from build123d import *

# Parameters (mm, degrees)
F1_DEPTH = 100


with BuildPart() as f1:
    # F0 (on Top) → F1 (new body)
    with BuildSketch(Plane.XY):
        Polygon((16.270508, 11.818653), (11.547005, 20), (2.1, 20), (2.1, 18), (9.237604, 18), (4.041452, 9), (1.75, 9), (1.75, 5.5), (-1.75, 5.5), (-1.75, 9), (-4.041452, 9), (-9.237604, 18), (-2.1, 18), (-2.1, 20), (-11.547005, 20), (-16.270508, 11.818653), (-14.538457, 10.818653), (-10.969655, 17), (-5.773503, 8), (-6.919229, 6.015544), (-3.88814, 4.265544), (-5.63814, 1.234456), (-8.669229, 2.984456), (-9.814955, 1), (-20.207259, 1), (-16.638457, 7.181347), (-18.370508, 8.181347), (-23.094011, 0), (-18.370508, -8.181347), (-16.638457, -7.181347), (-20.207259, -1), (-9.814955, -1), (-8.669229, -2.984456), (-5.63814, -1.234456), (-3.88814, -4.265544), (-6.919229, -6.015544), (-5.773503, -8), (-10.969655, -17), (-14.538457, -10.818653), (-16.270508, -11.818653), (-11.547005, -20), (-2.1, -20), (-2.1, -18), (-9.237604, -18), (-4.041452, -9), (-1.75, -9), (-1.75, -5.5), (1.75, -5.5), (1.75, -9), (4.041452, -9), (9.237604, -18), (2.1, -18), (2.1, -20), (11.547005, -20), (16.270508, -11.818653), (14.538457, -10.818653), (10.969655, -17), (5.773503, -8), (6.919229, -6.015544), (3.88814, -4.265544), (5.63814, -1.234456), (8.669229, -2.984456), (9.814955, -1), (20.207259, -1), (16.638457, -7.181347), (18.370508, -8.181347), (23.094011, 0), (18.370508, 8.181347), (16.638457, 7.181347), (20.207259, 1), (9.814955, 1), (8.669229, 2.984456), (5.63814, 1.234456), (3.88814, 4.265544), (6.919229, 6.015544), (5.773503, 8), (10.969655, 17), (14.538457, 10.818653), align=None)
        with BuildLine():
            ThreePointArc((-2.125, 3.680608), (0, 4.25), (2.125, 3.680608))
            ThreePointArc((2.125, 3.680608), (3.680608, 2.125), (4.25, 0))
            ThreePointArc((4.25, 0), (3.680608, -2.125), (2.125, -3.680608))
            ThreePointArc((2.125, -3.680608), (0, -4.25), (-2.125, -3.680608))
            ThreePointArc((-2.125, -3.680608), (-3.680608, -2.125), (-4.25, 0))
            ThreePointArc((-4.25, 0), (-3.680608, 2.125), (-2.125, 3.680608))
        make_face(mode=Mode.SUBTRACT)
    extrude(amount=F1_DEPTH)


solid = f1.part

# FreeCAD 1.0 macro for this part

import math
import FreeCAD as App
import Part
import Sketcher
from FreeCAD import Vector
Q = App.Units.Quantity


def add_polygon(sketch, points):
    """Adds a closed chain of lines whose ends are joined by coincident constraints."""
    first, n = sketch.GeometryCount, len(points)
    for a, b in zip(points, points[1:] + points[:1]):
        sketch.addGeometry(Part.LineSegment(App.Vector(*a, 0), App.Vector(*b, 0)), False)
    for i in range(n):
        sketch.addConstraint(Sketcher.Constraint("Coincident", first + i, 2, first + (i + 1) % n, 1))

doc = App.newDocument("Part")
body = doc.addObject("PartDesign::Body", "Body")

# Sketch on XY plane
sketch1 = body.newObject("Sketcher::SketchObject", "Sketch")
sketch1.AttachmentSupport = (doc.getObject("XY_Plane"), [""])
sketch1.MapMode = "FlatFace"
add_polygon(sketch1, [(16.270508, 11.818653), (11.547005, 20), (2.1, 20), (2.1, 18), (9.237604, 18), (4.041452, 9), (1.75, 9), (1.75, 5.5), (-1.75, 5.5), (-1.75, 9), (-4.041452, 9), (-9.237604, 18), (-2.1, 18), (-2.1, 20), (-11.547005, 20), (-16.270508, 11.818653), (-14.538457, 10.818653), (-10.969655, 17), (-5.773503, 8), (-6.919229, 6.015544), (-3.88814, 4.265544), (-5.63814, 1.234456), (-8.669229, 2.984456), (-9.814955, 1), (-20.207259, 1), (-16.638457, 7.181347), (-18.370508, 8.181347), (-23.094011, 0), (-18.370508, -8.181347), (-16.638457, -7.181347), (-20.207259, -1), (-9.814955, -1), (-8.669229, -2.984456), (-5.63814, -1.234456), (-3.88814, -4.265544), (-6.919229, -6.015544), (-5.773503, -8), (-10.969655, -17), (-14.538457, -10.818653), (-16.270508, -11.818653), (-11.547005, -20), (-2.1, -20), (-2.1, -18), (-9.237604, -18), (-4.041452, -9), (-1.75, -9), (-1.75, -5.5), (1.75, -5.5), (1.75, -9), (4.041452, -9), (9.237604, -18), (2.1, -18), (2.1, -20), (11.547005, -20), (16.270508, -11.818653), (14.538457, -10.818653), (10.969655, -17), (5.773503, -8), (6.919229, -6.015544), (3.88814, -4.265544), (5.63814, -1.234456), (8.669229, -2.984456), (9.814955, -1), (20.207259, -1), (16.638457, -7.181347), (18.370508, -8.181347), (23.094011, 0), (18.370508, 8.181347), (16.638457, 7.181347), (20.207259, 1), (9.814955, 1), (8.669229, 2.984456), (5.63814, 1.234456), (3.88814, 4.265544), (6.919229, 6.015544), (5.773503, 8), (10.969655, 17), (14.538457, 10.818653)])  # lines 0-77
sketch1.addGeometry(Part.ArcOfCircle(Part.Circle(Vector(0, 0, 0), Vector(0, 0, 1), 4.25), math.radians(119.999999), math.radians(180.000001)), False)  # 78
sketch1.addGeometry(Part.ArcOfCircle(Part.Circle(Vector(0, 0, 0), Vector(0, 0, 1), 4.25), math.radians(60.000002), math.radians(119.999998)), False)  # 79
sketch1.addGeometry(Part.ArcOfCircle(Part.Circle(Vector(0, 0, 0), Vector(0, 0, 1), 4.25), math.radians(-0.000001), math.radians(60.000001)), False)  # 80
sketch1.addGeometry(Part.ArcOfCircle(Part.Circle(Vector(0, 0, 0), Vector(0, 0, 1), 4.25), math.radians(-60.000001), math.radians(0.000001)), False)  # 81
sketch1.addGeometry(Part.ArcOfCircle(Part.Circle(Vector(0, 0, 0), Vector(0, 0, 1), 4.25), math.radians(-119.999998), math.radians(-60.000002)), False)  # 82
sketch1.addGeometry(Part.ArcOfCircle(Part.Circle(Vector(0, 0, 0), Vector(0, 0, 1), 4.25), math.radians(179.999999), math.radians(240.000001)), False)  # 83
sketch1.addConstraint([
    Sketcher.Constraint("Tangent", 78, 1, 79, 2),
    Sketcher.Constraint("Tangent", 79, 1, 80, 2),
    Sketcher.Constraint("Tangent", 80, 1, 81, 2),
    Sketcher.Constraint("Tangent", 81, 1, 82, 2),
    Sketcher.Constraint("Tangent", 82, 1, 83, 2),
    Sketcher.Constraint("Tangent", 83, 1, 78, 2),
    Sketcher.Constraint("Horizontal", 1),
    Sketcher.Constraint("Vertical", 2),
    Sketcher.Constraint("Horizontal", 3),
    Sketcher.Constraint("Horizontal", 5),
    Sketcher.Constraint("Vertical", 6),
    Sketcher.Constraint("Horizontal", 7),
    Sketcher.Constraint("Vertical", 8),
    Sketcher.Constraint("Horizontal", 9),
    Sketcher.Constraint("Horizontal", 11),
    Sketcher.Constraint("Vertical", 12),
    Sketcher.Constraint("Horizontal", 13),
    Sketcher.Constraint("Horizontal", 23),
    Sketcher.Constraint("Horizontal", 30),
    Sketcher.Constraint("Horizontal", 40),
    Sketcher.Constraint("Vertical", 41),
    Sketcher.Constraint("Horizontal", 42),
    Sketcher.Constraint("Horizontal", 44),
    Sketcher.Constraint("Vertical", 45),
    Sketcher.Constraint("Horizontal", 46),
    Sketcher.Constraint("Vertical", 47),
    Sketcher.Constraint("Horizontal", 48),
    Sketcher.Constraint("Horizontal", 50),
    Sketcher.Constraint("Vertical", 51),
    Sketcher.Constraint("Horizontal", 52),
    Sketcher.Constraint("Horizontal", 62),
    Sketcher.Constraint("Horizontal", 69),
    Sketcher.Constraint("Coincident", 78, 3, -1, 1),
    Sketcher.Constraint("Coincident", 80, 3, -1, 1),
    Sketcher.Constraint("Equal", 80, 81),
    Sketcher.Constraint("Symmetric", 0, 2, 39, 2, -1, 1),
    Sketcher.Constraint("Symmetric", 2, 2, 41, 2, -1, 1),
    Sketcher.Constraint("Symmetric", 4, 2, 43, 2, -1, 1),
    Sketcher.Constraint("Symmetric", 6, 2, 45, 2, -1, 1),
    Sketcher.Constraint("Symmetric", 8, 2, 47, 2, -1, 1),
    Sketcher.Constraint("Symmetric", 10, 2, 49, 2, -1, 1),
    Sketcher.Constraint("Symmetric", 12, 2, 51, 2, -1, 1),
    Sketcher.Constraint("Symmetric", 14, 2, 53, 2, -1, 1),
    Sketcher.Constraint("Symmetric", 15, 2, 54, 2, -1, 1),
    Sketcher.Constraint("Symmetric", 16, 2, 55, 2, -1, 1),
    Sketcher.Constraint("Symmetric", 17, 2, 56, 2, -1, 1),
    Sketcher.Constraint("Symmetric", 18, 2, 57, 2, -1, 1),
    Sketcher.Constraint("Symmetric", 19, 2, 58, 2, -1, 1),
    Sketcher.Constraint("Symmetric", 20, 2, 59, 2, -1, 1),
    Sketcher.Constraint("Symmetric", 21, 2, 60, 2, -1, 1),
    Sketcher.Constraint("Symmetric", 22, 2, 61, 2, -1, 1),
    Sketcher.Constraint("Symmetric", 24, 2, 63, 2, -1, 1),
    Sketcher.Constraint("Symmetric", 25, 2, 64, 2, -1, 1),
    Sketcher.Constraint("Symmetric", 26, 2, 65, 2, -1, 1),
    Sketcher.Constraint("Symmetric", 27, 2, 66, 2, -1, 1),
    Sketcher.Constraint("Symmetric", 28, 2, 67, 2, -1, 1),
    Sketcher.Constraint("Symmetric", 29, 2, 68, 2, -1, 1),
    Sketcher.Constraint("Symmetric", 31, 2, 70, 2, -1, 1),
    Sketcher.Constraint("Symmetric", 32, 2, 71, 2, -1, 1),
    Sketcher.Constraint("Symmetric", 33, 2, 72, 2, -1, 1),
    Sketcher.Constraint("Symmetric", 34, 2, 73, 2, -1, 1),
    Sketcher.Constraint("Symmetric", 35, 2, 74, 2, -1, 1),
    Sketcher.Constraint("Symmetric", 36, 2, 75, 2, -1, 1),
    Sketcher.Constraint("Symmetric", 37, 2, 76, 2, -1, 1),
    Sketcher.Constraint("Symmetric", 38, 2, 77, 2, -1, 1),
    Sketcher.Constraint("Symmetric", 5, 2, 8, 2, -2),
    Sketcher.Constraint("Symmetric", 3, 2, 10, 2, -2),
    Sketcher.Constraint("Symmetric", 1, 2, 12, 2, -2),
    Sketcher.Constraint("Symmetric", 38, 2, 53, 2, -2),
    Sketcher.Constraint("Symmetric", 37, 2, 54, 2, -2),
    Sketcher.Constraint("Symmetric", 36, 2, 55, 2, -2),
    Sketcher.Constraint("Symmetric", 35, 2, 56, 2, -2),
    Sketcher.Constraint("Symmetric", 34, 2, 57, 2, -2),
    Sketcher.Constraint("Symmetric", 33, 2, 58, 2, -2),
    Sketcher.Constraint("Symmetric", 32, 2, 59, 2, -2),
    Sketcher.Constraint("Symmetric", 31, 2, 60, 2, -2),
    Sketcher.Constraint("Symmetric", 30, 2, 61, 2, -2),
    Sketcher.Constraint("Symmetric", 28, 2, 63, 2, -2),
    Sketcher.Constraint("Symmetric", 27, 2, 64, 2, -2),
    Sketcher.Constraint("PointOnObject", 26, 2, -1),
    Sketcher.Constraint("PointOnObject", 80, 1, -1),
    Sketcher.Constraint("PointOnObject", 83, 1, -1),
    Sketcher.Constraint("Parallel", 0, 10),
    Sketcher.Constraint("Parallel", 4, 14),
    Sketcher.Constraint("Perpendicular", 14, 15),
    Sketcher.Constraint("Perpendicular", 15, 16),
    Sketcher.Constraint("Parallel", 10, 17),
    Sketcher.Constraint("Parallel", 16, 18),
    Sketcher.Constraint("Perpendicular", 18, 19),
    Sketcher.Constraint("Perpendicular", 19, 20),
    Sketcher.Constraint("Perpendicular", 20, 21),
    Sketcher.Constraint("Perpendicular", 21, 22),
    Sketcher.Constraint("Parallel", 22, 24),
    Sketcher.Constraint("Perpendicular", 24, 25),
    Sketcher.Constraint("Perpendicular", 25, 26),
    Sketcher.Constraint("Parallel", 17, 27),
    Sketcher.Constraint("Perpendicular", 28, 29),
    Sketcher.Constraint("Parallel", 36, 43),
    Sketcher.Constraint("Parallel", 39, 49),
    Sketcher.Constraint("Parallel", 43, 53),
    Sketcher.Constraint("Parallel", 61, 63),
    Sketcher.Constraint("Parallel", 68, 70),
    Sketcher.Constraint("Horizontal", 78, 1, 79, 1),
    Sketcher.Constraint("Horizontal", 81, 1, 82, 1),
    Sketcher.Constraint("Vertical", 79, 1, 81, 1),
    Sketcher.Constraint("Equal", 46, 6),
    Sketcher.Constraint("Equal", 10, 17),
    Sketcher.Constraint("Equal", 19, 20),
    Sketcher.Constraint("Equal", 20, 21),
    Sketcher.Constraint("Equal", 18, 22),
    Sketcher.Constraint("Equal", 16, 24),
    Sketcher.Constraint("Equal", 15, 25),
    Sketcher.Constraint("Equal", 14, 26),
    Sketcher.Constraint("DistanceY", 2, 2, 2, 1, 2.0),
    Sketcher.Constraint("Angle", 0, Q("120.000001 deg")),
    Sketcher.Constraint("Radius", 78, 4.25),
    Sketcher.Constraint("Distance", 15, 2.0),
    Sketcher.Constraint("DistanceX", 7, 2, 7, 1, 3.5),
    Sketcher.Constraint("DistanceY", -1, 1, 0, 2, 20.0),
    Sketcher.Constraint("DistanceY", -1, 1, 4, 2, 9.0),
    Sketcher.Constraint("DistanceY", -1, 1, 16, 2, 17.0),
    Sketcher.Constraint("Distance", 19, 3.5),
    Sketcher.Constraint("DistanceX", -1, 1, 1, 2, 2.1),
    Sketcher.Constraint("DistanceX", 78, 1, -1, 1, 2.125),
    Sketcher.Constraint("DistanceX", 5, 2, 5, 1, 2.291452),
    Sketcher.Constraint("DistanceX", 1, 2, 1, 1, 9.447005),
    Sketcher.Constraint("DistanceX", 23, 2, 23, 1, 10.392304),
    Sketcher.Constraint("DistanceX", 25, 2, -1, 1, 18.370508),
])
pad1 = body.newObject("PartDesign::Pad", "Pad")
pad1.Profile = sketch1
pad1.Length = 100

doc.recompute()
